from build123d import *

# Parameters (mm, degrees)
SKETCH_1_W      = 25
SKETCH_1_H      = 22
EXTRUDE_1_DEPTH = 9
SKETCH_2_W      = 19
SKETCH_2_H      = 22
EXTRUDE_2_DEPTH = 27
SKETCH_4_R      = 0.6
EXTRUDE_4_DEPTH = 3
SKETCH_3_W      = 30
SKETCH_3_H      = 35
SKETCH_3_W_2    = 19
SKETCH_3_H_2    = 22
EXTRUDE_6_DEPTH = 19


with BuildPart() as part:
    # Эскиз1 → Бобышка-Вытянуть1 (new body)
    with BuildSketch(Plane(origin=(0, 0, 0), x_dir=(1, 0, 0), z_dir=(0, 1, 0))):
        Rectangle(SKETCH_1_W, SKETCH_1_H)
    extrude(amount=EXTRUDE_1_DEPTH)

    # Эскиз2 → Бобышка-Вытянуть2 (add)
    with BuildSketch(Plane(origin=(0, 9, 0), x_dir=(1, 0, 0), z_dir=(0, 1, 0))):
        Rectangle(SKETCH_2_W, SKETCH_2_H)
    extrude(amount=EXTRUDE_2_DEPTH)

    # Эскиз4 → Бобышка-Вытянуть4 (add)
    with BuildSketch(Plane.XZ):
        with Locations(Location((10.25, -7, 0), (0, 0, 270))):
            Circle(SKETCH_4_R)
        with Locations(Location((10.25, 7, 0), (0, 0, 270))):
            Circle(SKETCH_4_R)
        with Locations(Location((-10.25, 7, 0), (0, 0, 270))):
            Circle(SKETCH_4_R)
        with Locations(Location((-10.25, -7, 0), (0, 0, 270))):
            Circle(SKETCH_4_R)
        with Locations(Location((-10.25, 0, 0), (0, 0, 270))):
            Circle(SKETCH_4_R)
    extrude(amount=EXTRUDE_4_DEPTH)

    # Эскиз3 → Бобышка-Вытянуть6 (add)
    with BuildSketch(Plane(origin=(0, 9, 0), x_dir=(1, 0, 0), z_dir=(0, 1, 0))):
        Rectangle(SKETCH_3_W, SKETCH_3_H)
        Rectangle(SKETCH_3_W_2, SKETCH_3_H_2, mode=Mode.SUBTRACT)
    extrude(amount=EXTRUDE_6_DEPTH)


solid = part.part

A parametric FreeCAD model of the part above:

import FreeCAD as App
import Part
import Sketcher

V = App.Vector
Q = App.Units.Quantity


def add_polygon(sketch, points):
    """Adds a closed chain of lines whose ends are joined by coincident constraints."""
    first, n = sketch.GeometryCount, len(points)
    for a, b in zip(points, points[1:] + points[:1]):
        sketch.addGeometry(Part.LineSegment(App.Vector(*a, 0), App.Vector(*b, 0)), False)
    for i in range(n):
        sketch.addConstraint(Sketcher.Constraint("Coincident", first + i, 2, first + (i + 1) % n, 1))

doc = App.newDocument("Part")
body = doc.addObject("PartDesign::Body", "Body")

sketch1 = body.newObject("Sketcher::SketchObject", "Sketch")
sketch1.AttachmentSupport = (doc.getObject("XZ_Plane"), [""])
sketch1.MapMode = "FlatFace"
add_polygon(sketch1, [(-12, -11), (-12, 11), (12, 11), (12, -11)])
sketch1.addConstraint(Sketcher.Constraint("Vertical", 0))
sketch1.addConstraint(Sketcher.Constraint("Horizontal", 1))
sketch1.addConstraint(Sketcher.Constraint("Vertical", 2))
sketch1.addConstraint(Sketcher.Constraint("Horizontal", 3))
sketch1.addConstraint(Sketcher.Constraint("Symmetric", 0, 2, 2, 2, -1, 1))
sketch1.addConstraint(Sketcher.Constraint("DistanceX", 1, 1, 1, 2, Q("25 mm")))
sketch1.addConstraint(Sketcher.Constraint("DistanceY", 0, 1, 0, 2, Q("22 mm")))
pad1 = body.newObject("PartDesign::Pad", "Pad")
pad1.Profile = sketch1
pad1.Length = 9
pad1.Reversed = True

sketch2 = body.newObject("Sketcher::SketchObject", "Sketch001")
sketch2.AttachmentSupport = (doc.getObject("XZ_Plane"), [""])
sketch2.MapMode = "FlatFace"
sketch2.AttachmentOffset = App.Placement(V(0, 0, -9), App.Rotation())
add_polygon(sketch2, [(-10, -11), (-10, 11), (10, 11), (10, -11)])
sketch2.addConstraint(Sketcher.Constraint("Vertical", 0))
sketch2.addConstraint(Sketcher.Constraint("Horizontal", 1))
sketch2.addConstraint(Sketcher.Constraint("Vertical", 2))
sketch2.addConstraint(Sketcher.Constraint("Horizontal", 3))
sketch2.addConstraint(Sketcher.Constraint("Symmetric", 0, 2, 2, 2, -1, 1))
sketch2.addConstraint(Sketcher.Constraint("DistanceX", 1, 1, 1, 2, Q("19 mm")))
sketch2.addConstraint(Sketcher.Constraint("DistanceY", 0, 1, 0, 2, Q("22 mm")))
pad2 = body.newObject("PartDesign::Pad", "Pad001")
pad2.Profile = sketch2
pad2.Length = 27
pad2.Reversed = True

sketch3 = body.newObject("Sketcher::SketchObject", "Sketch002")
sketch3.AttachmentSupport = (doc.getObject("XZ_Plane"), [""])
sketch3.MapMode = "FlatFace"
sketch3.addGeometry(Part.Circle(V(10.2, -7, 0), V(0, 0, 1), 0.6), False)
sketch3.addGeometry(Part.Circle(V(10.2, 7, 0), V(0, 0, 1), 0.6), False)
sketch3.addGeometry(Part.Circle(V(-10.2, 7, 0), V(0, 0, 1), 0.6), False)
sketch3.addGeometry(Part.Circle(V(-10.2, -7, 0), V(0, 0, 1), 0.6), False)
sketch3.addGeometry(Part.Circle(V(-10.2, 0, 0), V(0, 0, 1), 0.6), False)
sketch3.addConstraint(Sketcher.Constraint("Equal", 0, 1))
sketch3.addConstraint(Sketcher.Constraint("Equal", 1, 2))
sketch3.addConstraint(Sketcher.Constraint("Equal", 2, 3))
sketch3.addConstraint(Sketcher.Constraint("Equal", 3, 4))
sketch3.addConstraint(Sketcher.Constraint("Symmetric", 0, 3, 2, 3, -1, 1))
sketch3.addConstraint(Sketcher.Constraint("Symmetric", 1, 3, 3, 3, -1, 1))
sketch3.addConstraint(Sketcher.Constraint("Symmetric", 1, 3, 2, 3, -2))
sketch3.addConstraint(Sketcher.Constraint("PointOnObject", 4, 3, -1))
sketch3.addConstraint(Sketcher.Constraint("Vertical", 3, 3, 4, 3))
sketch3.addConstraint(Sketcher.Constraint("Diameter", 0, Q("1.2 mm")))
sketch3.addConstraint(Sketcher.Constraint("DistanceY", 0, 3, -1, 1, Q("7 mm")))
sketch3.addConstraint(Sketcher.Constraint("DistanceX", 2, 3, 1, 3, Q("20.5 mm")))
pad3 = body.newObject("PartDesign::Pad", "Pad002")
pad3.Profile = sketch3
pad3.Length = 3

sketch4 = body.newObject("Sketcher::SketchObject", "Sketch003")
sketch4.AttachmentSupport = (doc.getObject("XZ_Plane"), [""])
sketch4.MapMode = "FlatFace"
sketch4.AttachmentOffset = App.Placement(V(0, 0, -9), App.Rotation())
add_polygon(sketch4, [(-15, -18), (-15, 18), (15, 18), (15, -18)])
add_polygon(sketch4, [(10, 11), (-10, 11), (-10, -11), (10, -11)])
sketch4.addConstraint(Sketcher.Constraint("Vertical", 0))
sketch4.addConstraint(Sketcher.Constraint("Horizontal", 1))
sketch4.addConstraint(Sketcher.Constraint("Vertical", 2))
sketch4.addConstraint(Sketcher.Constraint("Horizontal", 3))
sketch4.addConstraint(Sketcher.Constraint("Horizontal", 4))
sketch4.addConstraint(Sketcher.Constraint("Vertical", 5))
sketch4.addConstraint(Sketcher.Constraint("Horizontal", 6))
sketch4.addConstraint(Sketcher.Constraint("Vertical", 7))
sketch4.addConstraint(Sketcher.Constraint("Symmetric", 0, 2, 2, 2, -1, 1))
sketch4.addConstraint(Sketcher.Constraint("Symmetric", 4, 2, 6, 2, -1, 1))
sketch4.addConstraint(Sketcher.Constraint("DistanceX", 1, 1, 1, 2, Q("30 mm")))
sketch4.addConstraint(Sketcher.Constraint("DistanceX", 4, 2, 4, 1, Q("19 mm")))
sketch4.addConstraint(Sketcher.Constraint("DistanceY", 0, 1, 0, 2, Q("35 mm")))
sketch4.addConstraint(Sketcher.Constraint("DistanceY", 5, 2, 5, 1, Q("22 mm")))
pad4 = body.newObject("PartDesign::Pad", "Pad003")
pad4.Profile = sketch4
pad4.Length = 19
pad4.Reversed = True

doc.recompute()
